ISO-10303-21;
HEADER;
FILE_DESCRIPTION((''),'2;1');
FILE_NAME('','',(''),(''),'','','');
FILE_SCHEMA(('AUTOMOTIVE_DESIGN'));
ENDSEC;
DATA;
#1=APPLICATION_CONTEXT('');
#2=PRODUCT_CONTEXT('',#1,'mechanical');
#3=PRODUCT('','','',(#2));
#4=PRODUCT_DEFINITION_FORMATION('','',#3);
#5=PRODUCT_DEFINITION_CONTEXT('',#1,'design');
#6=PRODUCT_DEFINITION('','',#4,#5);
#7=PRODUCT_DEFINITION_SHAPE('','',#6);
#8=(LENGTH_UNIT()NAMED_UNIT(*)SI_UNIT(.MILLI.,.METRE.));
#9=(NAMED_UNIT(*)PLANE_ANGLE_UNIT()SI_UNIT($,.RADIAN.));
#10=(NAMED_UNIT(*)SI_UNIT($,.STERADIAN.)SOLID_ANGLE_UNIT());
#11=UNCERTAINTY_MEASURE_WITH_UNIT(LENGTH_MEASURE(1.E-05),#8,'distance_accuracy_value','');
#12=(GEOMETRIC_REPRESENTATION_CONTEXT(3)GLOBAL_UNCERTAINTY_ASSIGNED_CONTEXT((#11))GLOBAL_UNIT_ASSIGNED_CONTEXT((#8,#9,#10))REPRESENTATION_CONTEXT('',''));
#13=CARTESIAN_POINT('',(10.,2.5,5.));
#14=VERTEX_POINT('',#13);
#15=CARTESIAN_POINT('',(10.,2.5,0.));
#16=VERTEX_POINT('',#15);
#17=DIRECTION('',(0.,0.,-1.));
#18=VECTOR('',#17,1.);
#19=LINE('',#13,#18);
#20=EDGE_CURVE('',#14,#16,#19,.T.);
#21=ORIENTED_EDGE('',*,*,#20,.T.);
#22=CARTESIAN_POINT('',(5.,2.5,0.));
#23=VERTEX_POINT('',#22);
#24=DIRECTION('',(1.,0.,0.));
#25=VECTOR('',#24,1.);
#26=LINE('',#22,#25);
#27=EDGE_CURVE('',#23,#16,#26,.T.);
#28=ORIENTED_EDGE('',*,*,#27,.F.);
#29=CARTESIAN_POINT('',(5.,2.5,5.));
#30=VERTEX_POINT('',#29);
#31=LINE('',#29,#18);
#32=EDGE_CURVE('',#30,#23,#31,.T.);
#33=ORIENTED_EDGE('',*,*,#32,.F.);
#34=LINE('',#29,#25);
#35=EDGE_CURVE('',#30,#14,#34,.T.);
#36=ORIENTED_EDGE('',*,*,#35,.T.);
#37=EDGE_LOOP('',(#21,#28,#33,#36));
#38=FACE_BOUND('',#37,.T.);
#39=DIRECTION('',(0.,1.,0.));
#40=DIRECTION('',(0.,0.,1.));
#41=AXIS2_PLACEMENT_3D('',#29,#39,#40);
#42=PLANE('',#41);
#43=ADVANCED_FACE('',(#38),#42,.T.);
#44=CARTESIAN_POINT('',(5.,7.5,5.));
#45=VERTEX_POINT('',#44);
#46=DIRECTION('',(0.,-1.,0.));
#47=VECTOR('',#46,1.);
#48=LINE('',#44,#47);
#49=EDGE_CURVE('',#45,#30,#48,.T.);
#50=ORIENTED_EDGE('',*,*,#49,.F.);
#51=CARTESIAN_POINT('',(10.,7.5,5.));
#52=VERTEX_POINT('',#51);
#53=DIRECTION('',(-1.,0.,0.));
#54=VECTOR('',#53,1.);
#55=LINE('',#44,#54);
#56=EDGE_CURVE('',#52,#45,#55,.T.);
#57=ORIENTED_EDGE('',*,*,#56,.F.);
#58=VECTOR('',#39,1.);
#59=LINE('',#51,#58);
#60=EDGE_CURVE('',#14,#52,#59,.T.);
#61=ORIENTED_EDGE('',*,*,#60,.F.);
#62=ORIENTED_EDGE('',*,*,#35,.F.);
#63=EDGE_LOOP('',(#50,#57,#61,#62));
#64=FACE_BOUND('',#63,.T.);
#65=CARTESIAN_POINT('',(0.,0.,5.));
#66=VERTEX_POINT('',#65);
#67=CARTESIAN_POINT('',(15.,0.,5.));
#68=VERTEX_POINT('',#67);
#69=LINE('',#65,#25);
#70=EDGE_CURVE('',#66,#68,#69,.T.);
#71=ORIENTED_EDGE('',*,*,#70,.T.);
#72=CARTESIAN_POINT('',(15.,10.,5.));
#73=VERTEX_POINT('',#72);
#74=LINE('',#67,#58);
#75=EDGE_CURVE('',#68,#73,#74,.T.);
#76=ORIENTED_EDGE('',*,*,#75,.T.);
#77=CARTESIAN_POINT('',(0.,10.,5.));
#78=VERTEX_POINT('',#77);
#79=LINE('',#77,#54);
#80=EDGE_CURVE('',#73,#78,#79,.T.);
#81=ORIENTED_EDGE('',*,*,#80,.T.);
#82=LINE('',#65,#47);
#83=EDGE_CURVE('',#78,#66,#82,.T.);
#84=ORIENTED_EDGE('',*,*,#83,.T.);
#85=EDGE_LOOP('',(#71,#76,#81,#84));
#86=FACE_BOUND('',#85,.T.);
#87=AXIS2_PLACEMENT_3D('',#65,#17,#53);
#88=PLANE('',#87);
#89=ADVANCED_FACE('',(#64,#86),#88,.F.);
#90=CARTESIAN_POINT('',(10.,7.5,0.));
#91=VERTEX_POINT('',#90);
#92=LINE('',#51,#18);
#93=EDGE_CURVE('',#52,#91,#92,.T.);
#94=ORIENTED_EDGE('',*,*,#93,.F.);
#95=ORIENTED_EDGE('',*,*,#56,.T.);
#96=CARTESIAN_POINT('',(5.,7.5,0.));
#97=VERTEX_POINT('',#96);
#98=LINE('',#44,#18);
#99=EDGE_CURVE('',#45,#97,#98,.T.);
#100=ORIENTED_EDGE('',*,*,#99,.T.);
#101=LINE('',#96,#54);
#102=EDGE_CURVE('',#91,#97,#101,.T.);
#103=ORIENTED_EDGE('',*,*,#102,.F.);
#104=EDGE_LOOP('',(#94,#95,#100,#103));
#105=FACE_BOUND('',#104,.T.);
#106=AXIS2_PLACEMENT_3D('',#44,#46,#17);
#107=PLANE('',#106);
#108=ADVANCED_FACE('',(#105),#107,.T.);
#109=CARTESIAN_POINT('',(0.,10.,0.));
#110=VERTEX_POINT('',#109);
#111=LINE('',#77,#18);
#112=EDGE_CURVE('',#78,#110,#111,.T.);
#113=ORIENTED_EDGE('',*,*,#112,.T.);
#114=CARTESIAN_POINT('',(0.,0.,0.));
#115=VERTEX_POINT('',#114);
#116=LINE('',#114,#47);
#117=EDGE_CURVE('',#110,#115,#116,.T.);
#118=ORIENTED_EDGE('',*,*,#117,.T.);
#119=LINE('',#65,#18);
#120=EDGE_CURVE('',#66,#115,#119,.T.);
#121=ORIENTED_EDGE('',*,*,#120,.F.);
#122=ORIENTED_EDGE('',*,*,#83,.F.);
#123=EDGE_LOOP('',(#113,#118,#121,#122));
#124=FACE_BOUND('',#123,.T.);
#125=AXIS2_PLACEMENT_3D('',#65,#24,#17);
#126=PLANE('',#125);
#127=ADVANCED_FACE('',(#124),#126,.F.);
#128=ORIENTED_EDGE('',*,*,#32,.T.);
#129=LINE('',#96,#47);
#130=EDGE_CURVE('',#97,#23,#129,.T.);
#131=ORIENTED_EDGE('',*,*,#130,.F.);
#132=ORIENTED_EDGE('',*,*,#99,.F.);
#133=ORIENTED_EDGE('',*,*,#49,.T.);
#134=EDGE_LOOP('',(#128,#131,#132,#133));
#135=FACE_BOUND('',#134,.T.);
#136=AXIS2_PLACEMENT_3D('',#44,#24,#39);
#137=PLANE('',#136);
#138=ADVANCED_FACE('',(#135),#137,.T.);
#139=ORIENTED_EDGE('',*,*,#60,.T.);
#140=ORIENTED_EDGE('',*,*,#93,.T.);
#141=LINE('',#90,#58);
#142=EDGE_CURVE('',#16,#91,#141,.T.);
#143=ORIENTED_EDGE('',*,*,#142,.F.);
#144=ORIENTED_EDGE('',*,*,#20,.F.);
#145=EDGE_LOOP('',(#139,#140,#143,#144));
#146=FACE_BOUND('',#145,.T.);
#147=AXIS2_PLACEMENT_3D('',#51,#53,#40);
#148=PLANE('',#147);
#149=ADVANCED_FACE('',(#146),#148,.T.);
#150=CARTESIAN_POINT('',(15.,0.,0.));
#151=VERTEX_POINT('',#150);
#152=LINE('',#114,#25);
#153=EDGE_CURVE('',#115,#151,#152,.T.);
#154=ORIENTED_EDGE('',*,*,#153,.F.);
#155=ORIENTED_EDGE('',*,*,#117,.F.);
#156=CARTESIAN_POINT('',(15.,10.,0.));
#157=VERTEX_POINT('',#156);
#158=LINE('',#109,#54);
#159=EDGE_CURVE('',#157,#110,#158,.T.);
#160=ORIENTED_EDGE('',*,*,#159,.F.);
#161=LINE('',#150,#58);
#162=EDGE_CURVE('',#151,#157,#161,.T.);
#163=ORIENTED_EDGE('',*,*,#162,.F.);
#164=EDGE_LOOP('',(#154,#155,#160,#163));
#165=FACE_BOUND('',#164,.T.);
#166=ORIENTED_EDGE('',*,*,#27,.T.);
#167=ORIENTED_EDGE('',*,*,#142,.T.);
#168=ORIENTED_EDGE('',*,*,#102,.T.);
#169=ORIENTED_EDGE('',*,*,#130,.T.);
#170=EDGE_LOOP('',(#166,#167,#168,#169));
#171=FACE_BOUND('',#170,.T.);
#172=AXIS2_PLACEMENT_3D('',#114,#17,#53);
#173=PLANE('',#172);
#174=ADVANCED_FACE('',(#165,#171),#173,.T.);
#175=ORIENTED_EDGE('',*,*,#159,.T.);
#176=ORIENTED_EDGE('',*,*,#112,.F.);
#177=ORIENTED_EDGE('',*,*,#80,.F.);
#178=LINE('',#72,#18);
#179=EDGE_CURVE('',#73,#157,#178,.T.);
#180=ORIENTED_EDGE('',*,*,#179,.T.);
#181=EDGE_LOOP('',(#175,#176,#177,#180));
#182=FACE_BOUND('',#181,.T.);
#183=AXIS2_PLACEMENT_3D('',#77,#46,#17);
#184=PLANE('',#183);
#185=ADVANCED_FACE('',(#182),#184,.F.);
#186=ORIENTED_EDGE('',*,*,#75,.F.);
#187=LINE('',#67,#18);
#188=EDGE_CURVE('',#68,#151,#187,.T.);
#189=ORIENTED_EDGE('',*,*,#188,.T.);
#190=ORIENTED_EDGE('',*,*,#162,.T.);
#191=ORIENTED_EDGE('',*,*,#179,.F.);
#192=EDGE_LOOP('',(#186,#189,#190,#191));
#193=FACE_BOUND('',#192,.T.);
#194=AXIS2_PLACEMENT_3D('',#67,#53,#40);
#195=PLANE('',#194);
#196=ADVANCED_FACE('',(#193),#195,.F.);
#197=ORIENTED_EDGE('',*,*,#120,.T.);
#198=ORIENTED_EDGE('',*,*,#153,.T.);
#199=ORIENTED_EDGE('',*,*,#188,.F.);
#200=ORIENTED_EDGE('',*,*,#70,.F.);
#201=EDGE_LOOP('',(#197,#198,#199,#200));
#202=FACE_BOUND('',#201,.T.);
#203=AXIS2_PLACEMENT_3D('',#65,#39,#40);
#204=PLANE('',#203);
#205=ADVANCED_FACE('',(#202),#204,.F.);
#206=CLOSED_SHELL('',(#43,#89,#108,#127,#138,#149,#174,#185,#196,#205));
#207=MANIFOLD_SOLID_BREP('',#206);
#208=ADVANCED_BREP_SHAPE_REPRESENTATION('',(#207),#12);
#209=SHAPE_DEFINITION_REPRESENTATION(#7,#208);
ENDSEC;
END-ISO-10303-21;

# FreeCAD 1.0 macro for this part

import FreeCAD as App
import Part
import Sketcher
Q = App.Units.Quantity

doc = App.newDocument("Part")
body = doc.addObject("PartDesign::Body", "Body")

# Sketch on XY plane
sketch1 = body.newObject("Sketcher::SketchObject", "Sketch")
sketch1.AttachmentSupport = (doc.getObject("XY_Plane"), [""])
sketch1.MapMode = "FlatFace"
sketch1.addGeometry([
    Part.LineSegment(App.Vector(0, 10, 0), App.Vector(0, 0, 0)),  # 0
    Part.LineSegment(App.Vector(0, 0, 0), App.Vector(15, 0, 0)),  # 1
    Part.LineSegment(App.Vector(15, 0, 0), App.Vector(15, 10, 0)),  # 2
    Part.LineSegment(App.Vector(15, 10, 0), App.Vector(0, 10, 0)),  # 3
    Part.LineSegment(App.Vector(10, 2, 0), App.Vector(5, 2, 0)),  # 4
    Part.LineSegment(App.Vector(5, 2, 0), App.Vector(5, 8, 0)),  # 5
    Part.LineSegment(App.Vector(5, 8, 0), App.Vector(10, 8, 0)),  # 6
    Part.LineSegment(App.Vector(10, 8, 0), App.Vector(10, 2, 0)),  # 7
], False)
sketch1.addConstraint([
    Sketcher.Constraint("Coincident", 0, 2, 1, 1),
    Sketcher.Constraint("Coincident", 1, 2, 2, 1),
    Sketcher.Constraint("Coincident", 2, 2, 3, 1),
    Sketcher.Constraint("Coincident", 3, 2, 0, 1),
    Sketcher.Constraint("Coincident", 4, 2, 5, 1),
    Sketcher.Constraint("Coincident", 5, 2, 6, 1),
    Sketcher.Constraint("Coincident", 6, 2, 7, 1),
    Sketcher.Constraint("Coincident", 7, 2, 4, 1),
    Sketcher.Constraint("Vertical", 0),
    Sketcher.Constraint("Horizontal", 1),
    Sketcher.Constraint("Vertical", 2),
    Sketcher.Constraint("Horizontal", 3),
    Sketcher.Constraint("Horizontal", 4),
    Sketcher.Constraint("Vertical", 5),
    Sketcher.Constraint("Horizontal", 6),
    Sketcher.Constraint("Vertical", 7),
    Sketcher.Constraint("Coincident", 0, 2, -1, 1),
    Sketcher.Constraint("Equal", 6, 5),
    Sketcher.Constraint("DistanceX", 1, 1, 1, 2, Q("15 mm")),
    Sketcher.Constraint("DistanceX", 4, 2, 4, 1, Q("5 mm")),
    Sketcher.Constraint("DistanceY", 0, 2, 0, 1, Q("10 mm")),
    Sketcher.Constraint("DistanceX", -1, 1, 4, 2, Q("5 mm")),
    Sketcher.Constraint("DistanceY", -1, 1, 4, 2, Q("2.5 mm")),
])
pad1 = body.newObject("PartDesign::Pad", "Pad")
pad1.Profile = sketch1
pad1.Length = 5

doc.recompute()
